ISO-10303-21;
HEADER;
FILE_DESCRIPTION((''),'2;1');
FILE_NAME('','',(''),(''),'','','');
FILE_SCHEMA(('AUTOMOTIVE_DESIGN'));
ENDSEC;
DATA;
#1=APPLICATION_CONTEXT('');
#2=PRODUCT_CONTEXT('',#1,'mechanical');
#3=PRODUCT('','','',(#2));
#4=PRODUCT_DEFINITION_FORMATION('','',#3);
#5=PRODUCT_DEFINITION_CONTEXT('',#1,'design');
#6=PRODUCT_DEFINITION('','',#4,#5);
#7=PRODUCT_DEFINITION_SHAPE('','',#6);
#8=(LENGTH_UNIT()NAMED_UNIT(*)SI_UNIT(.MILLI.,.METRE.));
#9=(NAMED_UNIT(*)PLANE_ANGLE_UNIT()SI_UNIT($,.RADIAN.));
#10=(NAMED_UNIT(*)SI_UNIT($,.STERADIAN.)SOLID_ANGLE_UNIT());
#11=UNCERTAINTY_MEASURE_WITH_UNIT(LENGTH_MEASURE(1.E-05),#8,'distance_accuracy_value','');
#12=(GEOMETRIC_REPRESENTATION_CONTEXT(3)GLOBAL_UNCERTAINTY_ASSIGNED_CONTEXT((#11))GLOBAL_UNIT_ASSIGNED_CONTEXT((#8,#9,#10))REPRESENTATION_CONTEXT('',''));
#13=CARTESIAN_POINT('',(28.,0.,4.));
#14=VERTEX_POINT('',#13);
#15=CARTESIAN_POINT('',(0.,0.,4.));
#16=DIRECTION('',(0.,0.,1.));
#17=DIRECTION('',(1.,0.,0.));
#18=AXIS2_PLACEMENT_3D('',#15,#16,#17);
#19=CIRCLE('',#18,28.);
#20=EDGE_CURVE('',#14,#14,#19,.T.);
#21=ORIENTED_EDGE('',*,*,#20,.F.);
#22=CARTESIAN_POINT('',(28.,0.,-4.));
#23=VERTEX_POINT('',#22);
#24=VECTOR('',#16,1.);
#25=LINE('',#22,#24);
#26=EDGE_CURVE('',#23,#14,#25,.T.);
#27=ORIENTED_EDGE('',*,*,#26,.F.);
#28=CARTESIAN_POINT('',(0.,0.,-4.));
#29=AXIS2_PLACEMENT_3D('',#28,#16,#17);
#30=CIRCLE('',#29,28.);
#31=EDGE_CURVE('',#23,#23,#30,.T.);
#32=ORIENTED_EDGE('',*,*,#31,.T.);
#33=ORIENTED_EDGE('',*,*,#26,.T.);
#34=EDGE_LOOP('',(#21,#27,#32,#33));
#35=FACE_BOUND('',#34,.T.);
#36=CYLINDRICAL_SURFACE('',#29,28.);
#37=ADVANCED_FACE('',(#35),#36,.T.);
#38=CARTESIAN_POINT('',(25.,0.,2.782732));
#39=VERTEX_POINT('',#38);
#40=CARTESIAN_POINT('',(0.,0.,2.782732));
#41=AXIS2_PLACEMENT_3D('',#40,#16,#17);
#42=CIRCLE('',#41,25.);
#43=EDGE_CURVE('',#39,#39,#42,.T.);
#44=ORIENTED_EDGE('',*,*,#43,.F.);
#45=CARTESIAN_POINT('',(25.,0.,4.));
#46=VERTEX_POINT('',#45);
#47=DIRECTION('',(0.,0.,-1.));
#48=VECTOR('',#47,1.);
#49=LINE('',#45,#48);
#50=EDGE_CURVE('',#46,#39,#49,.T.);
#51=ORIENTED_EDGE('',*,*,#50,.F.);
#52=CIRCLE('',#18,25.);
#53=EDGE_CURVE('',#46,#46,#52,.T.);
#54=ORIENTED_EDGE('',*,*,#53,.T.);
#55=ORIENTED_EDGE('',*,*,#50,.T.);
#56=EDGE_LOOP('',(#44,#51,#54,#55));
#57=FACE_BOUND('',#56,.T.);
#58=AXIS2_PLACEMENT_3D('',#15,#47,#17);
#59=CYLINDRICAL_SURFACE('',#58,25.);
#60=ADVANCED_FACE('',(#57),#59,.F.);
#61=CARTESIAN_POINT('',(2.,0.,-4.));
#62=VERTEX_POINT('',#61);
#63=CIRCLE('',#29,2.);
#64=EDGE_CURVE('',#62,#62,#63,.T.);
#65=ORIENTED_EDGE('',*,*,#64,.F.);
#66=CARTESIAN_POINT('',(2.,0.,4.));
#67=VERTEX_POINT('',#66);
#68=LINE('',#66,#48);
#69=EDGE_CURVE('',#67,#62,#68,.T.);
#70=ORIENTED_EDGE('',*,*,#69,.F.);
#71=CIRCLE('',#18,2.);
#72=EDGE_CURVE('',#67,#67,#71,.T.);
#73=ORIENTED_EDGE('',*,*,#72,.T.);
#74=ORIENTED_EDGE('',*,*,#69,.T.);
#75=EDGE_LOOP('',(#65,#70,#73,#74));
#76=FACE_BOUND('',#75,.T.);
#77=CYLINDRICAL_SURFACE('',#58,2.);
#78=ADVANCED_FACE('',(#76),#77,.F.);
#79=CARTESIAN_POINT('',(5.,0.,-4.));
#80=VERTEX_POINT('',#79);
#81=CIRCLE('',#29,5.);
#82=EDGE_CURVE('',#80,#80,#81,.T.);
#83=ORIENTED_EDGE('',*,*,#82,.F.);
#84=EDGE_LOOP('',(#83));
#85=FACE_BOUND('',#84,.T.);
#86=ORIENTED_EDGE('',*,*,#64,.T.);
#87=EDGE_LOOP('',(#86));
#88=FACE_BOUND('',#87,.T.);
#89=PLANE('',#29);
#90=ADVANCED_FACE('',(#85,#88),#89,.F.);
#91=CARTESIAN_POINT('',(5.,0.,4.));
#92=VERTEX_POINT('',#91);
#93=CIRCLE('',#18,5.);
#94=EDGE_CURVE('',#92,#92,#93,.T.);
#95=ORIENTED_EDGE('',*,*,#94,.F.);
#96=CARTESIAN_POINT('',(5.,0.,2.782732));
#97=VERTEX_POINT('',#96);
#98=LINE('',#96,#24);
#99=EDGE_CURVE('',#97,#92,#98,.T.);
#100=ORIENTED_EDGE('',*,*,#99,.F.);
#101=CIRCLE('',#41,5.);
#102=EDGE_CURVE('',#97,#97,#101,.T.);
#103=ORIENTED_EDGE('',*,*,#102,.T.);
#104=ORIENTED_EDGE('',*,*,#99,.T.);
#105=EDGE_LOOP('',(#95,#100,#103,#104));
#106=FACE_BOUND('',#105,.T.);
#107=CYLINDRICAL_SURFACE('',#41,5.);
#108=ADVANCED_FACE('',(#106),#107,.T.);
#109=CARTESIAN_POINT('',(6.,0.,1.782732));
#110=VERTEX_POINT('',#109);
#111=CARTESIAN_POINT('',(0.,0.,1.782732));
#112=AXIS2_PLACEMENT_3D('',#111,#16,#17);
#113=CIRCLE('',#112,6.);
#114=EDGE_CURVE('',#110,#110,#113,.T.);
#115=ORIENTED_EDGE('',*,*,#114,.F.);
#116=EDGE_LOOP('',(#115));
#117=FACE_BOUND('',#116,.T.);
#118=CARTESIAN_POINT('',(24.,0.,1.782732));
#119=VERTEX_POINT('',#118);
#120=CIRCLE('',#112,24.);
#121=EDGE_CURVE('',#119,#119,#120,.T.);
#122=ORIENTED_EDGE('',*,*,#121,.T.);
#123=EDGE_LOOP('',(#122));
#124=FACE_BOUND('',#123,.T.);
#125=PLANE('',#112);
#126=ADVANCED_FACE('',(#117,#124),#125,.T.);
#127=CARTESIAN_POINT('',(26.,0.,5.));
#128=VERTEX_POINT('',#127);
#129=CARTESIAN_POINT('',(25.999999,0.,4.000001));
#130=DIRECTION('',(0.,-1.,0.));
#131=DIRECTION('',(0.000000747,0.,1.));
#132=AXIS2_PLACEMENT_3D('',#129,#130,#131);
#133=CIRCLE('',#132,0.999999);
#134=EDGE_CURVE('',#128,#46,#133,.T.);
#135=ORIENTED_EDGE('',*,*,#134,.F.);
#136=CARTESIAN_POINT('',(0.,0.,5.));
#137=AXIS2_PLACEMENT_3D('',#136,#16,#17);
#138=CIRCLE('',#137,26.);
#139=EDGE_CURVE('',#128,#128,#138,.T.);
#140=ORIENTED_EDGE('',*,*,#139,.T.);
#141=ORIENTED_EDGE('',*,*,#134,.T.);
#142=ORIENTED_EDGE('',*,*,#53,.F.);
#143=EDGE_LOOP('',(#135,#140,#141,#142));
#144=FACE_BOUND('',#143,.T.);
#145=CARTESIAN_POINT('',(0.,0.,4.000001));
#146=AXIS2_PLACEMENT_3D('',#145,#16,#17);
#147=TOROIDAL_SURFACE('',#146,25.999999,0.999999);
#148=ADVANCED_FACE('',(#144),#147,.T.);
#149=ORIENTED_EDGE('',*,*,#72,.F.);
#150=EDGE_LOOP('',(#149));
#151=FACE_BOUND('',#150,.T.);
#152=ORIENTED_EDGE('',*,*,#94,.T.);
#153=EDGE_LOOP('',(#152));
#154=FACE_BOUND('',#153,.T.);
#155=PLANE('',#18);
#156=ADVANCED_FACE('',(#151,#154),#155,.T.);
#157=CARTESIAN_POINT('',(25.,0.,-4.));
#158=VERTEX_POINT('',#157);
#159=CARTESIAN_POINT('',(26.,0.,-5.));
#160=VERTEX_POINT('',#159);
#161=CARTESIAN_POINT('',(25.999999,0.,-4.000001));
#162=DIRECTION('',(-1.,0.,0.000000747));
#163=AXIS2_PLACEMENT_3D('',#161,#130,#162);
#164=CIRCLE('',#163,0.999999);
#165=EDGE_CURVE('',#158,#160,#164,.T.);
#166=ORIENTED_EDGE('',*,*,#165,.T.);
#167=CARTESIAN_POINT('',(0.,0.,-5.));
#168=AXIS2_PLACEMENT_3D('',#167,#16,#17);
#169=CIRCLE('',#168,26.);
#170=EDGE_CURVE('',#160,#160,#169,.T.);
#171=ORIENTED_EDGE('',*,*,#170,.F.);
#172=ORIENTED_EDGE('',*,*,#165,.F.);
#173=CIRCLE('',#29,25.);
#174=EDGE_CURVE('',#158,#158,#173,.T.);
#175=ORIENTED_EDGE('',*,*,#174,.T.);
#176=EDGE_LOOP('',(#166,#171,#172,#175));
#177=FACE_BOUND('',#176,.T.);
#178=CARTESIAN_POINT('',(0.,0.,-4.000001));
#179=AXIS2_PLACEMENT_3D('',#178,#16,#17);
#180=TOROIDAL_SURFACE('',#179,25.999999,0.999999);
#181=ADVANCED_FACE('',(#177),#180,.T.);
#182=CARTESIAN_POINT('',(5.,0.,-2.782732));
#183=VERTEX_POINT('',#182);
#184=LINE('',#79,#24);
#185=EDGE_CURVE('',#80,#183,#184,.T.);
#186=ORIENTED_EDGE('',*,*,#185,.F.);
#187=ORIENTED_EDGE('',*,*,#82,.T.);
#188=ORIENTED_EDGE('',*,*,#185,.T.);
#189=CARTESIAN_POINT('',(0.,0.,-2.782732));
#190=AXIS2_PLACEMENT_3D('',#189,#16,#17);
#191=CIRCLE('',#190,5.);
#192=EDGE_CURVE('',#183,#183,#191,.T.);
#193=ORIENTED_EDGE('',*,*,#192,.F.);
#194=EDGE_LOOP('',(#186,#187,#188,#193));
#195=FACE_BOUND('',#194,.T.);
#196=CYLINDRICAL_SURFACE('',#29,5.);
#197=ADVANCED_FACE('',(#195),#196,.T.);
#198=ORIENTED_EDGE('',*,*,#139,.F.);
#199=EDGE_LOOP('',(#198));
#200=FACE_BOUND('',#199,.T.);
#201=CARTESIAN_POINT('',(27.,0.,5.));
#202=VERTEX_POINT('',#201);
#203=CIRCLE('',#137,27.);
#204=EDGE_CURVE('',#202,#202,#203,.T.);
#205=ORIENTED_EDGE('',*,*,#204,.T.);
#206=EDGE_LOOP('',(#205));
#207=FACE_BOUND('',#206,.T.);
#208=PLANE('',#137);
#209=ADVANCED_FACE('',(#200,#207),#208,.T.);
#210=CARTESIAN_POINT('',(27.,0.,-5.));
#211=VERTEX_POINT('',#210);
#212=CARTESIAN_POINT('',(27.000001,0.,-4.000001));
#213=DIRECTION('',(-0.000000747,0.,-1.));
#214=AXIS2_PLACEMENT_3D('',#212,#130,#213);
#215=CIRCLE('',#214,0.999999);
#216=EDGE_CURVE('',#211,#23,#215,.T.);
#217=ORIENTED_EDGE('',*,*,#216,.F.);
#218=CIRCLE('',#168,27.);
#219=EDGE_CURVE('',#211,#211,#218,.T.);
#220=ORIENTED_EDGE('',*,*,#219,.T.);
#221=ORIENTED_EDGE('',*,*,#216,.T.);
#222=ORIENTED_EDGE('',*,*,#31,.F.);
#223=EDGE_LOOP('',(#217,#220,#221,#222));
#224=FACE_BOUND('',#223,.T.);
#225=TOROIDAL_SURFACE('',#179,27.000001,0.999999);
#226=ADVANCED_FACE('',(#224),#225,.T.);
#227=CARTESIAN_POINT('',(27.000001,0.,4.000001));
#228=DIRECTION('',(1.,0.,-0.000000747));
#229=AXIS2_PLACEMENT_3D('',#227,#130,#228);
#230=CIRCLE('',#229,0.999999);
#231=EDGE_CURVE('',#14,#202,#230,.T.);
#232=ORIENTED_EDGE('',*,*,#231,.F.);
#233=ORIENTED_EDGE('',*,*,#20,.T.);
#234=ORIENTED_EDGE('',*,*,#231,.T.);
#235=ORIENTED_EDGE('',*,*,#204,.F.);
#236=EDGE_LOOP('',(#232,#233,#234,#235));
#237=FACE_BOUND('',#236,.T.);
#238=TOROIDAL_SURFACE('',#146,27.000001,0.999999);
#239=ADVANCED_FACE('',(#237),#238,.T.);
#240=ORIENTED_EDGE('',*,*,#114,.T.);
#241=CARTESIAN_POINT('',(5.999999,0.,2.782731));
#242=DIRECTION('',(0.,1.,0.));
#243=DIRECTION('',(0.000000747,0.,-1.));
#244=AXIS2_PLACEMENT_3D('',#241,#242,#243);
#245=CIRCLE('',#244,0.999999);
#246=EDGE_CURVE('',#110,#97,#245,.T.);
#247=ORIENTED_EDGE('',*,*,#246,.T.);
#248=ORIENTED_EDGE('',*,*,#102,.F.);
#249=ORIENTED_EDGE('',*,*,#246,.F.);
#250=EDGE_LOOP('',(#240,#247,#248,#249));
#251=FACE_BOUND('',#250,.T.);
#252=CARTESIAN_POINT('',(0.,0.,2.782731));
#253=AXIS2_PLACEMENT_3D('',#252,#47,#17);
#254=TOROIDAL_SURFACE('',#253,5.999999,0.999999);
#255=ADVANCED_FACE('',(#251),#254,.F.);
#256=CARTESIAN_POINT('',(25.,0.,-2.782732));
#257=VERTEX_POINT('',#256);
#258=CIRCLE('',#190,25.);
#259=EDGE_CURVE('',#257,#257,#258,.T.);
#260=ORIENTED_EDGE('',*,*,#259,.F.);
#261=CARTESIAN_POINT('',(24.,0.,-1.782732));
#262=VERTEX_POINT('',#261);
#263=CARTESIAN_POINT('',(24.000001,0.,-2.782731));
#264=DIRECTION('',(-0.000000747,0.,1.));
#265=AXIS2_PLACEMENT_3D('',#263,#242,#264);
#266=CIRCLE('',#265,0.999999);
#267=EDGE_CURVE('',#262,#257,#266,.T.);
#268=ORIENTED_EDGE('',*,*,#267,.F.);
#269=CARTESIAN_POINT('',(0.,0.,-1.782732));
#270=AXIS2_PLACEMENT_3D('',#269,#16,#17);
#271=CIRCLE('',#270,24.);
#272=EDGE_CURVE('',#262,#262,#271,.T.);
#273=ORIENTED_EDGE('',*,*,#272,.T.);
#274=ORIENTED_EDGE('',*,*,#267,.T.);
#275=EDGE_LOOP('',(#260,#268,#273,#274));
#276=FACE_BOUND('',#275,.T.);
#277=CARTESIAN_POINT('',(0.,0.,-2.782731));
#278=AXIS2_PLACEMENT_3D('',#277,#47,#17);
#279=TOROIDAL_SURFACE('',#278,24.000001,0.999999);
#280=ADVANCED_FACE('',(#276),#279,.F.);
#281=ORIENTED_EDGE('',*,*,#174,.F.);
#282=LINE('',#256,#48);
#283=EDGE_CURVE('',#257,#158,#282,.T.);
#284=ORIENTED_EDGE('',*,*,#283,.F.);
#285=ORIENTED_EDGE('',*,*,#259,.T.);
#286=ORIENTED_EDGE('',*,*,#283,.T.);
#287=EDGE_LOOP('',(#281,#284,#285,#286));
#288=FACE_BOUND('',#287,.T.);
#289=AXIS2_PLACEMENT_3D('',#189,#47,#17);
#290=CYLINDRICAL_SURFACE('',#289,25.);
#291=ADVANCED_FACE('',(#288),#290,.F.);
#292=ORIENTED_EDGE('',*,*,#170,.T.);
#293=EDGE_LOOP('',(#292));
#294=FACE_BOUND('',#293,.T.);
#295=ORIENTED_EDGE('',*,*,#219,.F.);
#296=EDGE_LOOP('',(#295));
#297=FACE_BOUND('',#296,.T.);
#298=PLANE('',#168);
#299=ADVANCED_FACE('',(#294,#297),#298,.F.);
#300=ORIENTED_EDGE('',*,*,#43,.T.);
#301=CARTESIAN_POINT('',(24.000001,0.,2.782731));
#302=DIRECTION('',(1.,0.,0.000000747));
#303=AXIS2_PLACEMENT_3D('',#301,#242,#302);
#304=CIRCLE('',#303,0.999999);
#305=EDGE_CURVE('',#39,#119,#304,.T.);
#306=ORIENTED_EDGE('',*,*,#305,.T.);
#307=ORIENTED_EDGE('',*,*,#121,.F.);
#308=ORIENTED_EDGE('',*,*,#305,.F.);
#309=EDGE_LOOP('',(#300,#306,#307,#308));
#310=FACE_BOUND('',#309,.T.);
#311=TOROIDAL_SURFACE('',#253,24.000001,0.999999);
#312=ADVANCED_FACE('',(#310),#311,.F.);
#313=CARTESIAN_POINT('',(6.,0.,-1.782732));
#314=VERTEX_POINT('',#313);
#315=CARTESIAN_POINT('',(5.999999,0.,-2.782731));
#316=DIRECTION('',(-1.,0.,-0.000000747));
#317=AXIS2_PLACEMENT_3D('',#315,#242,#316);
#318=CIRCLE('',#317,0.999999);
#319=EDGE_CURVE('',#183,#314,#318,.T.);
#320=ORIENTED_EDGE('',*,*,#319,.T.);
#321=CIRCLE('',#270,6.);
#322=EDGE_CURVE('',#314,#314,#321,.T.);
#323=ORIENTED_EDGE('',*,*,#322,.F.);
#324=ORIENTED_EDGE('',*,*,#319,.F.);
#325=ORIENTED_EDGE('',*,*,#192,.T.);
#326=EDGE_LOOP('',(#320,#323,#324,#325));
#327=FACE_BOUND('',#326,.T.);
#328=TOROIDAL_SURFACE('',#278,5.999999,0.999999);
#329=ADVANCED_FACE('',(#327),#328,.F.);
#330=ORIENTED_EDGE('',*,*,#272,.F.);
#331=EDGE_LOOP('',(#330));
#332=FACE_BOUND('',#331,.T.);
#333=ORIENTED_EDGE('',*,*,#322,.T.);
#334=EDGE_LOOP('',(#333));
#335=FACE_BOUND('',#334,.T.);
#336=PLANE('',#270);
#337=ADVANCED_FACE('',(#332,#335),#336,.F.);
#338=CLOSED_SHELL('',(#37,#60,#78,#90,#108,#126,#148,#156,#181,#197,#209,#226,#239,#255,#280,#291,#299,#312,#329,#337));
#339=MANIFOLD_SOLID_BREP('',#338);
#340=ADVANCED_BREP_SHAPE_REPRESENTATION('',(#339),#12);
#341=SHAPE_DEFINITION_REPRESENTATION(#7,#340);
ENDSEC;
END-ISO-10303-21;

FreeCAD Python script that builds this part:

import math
import FreeCAD as App
import Part
import Sketcher
Q = App.Units.Quantity

doc = App.newDocument("Part")
body = doc.addObject("PartDesign::Body", "Body")

sketch1 = doc.addObject("Sketcher::SketchObject", "Sketch")
body.addObject(sketch1)
sketch1.AttachmentSupport = (doc.XZ_Plane, [""])
sketch1.MapMode = "FlatFace"
sketch1.addGeometry([
    Part.LineSegment(App.Vector(2, 4, 0), App.Vector(2, -4, 0)),
    Part.LineSegment(App.Vector(2, -4, 0), App.Vector(5, -4, 0)),
    Part.LineSegment(App.Vector(5, -4, 0), App.Vector(5, -2.8, 0)),
    Part.ArcOfCircle(Part.Circle(App.Vector(6, -2.8, 0), App.Vector(0, 0, 1), 1), math.radians(90), math.radians(180)),
    Part.LineSegment(App.Vector(6, -1.8, 0), App.Vector(24, -1.8, 0)),
    Part.ArcOfCircle(Part.Circle(App.Vector(24, -2.8, 0), App.Vector(0, 0, 1), 1), math.radians(0), math.radians(90)),
    Part.LineSegment(App.Vector(25, -2.8, 0), App.Vector(25, -4, 0)),
    Part.ArcOfCircle(Part.Circle(App.Vector(26, -4, 0), App.Vector(0, 0, 1), 1), math.radians(180), math.radians(270)),
    Part.LineSegment(App.Vector(26, -5, 0), App.Vector(27, -5, 0)),
    Part.ArcOfCircle(Part.Circle(App.Vector(27, -4, 0), App.Vector(0, 0, 1), 1), math.radians(-90), math.radians(0)),
    Part.LineSegment(App.Vector(28, -4, 0), App.Vector(28, 4, 0)),
    Part.ArcOfCircle(Part.Circle(App.Vector(27, 4, 0), App.Vector(0, 0, 1), 1), math.radians(0), math.radians(90)),
    Part.LineSegment(App.Vector(27, 5, 0), App.Vector(26, 5, 0)),
    Part.ArcOfCircle(Part.Circle(App.Vector(26, 4, 0), App.Vector(0, 0, 1), 1), math.radians(90), math.radians(180)),
    Part.LineSegment(App.Vector(25, 4, 0), App.Vector(25, 2.8, 0)),
    Part.ArcOfCircle(Part.Circle(App.Vector(24, 2.8, 0), App.Vector(0, 0, 1), 1), math.radians(-90), math.radians(0)),
    Part.LineSegment(App.Vector(24, 1.8, 0), App.Vector(6, 1.8, 0)),
    Part.ArcOfCircle(Part.Circle(App.Vector(6, 2.8, 0), App.Vector(0, 0, 1), 1), math.radians(180), math.radians(270)),
    Part.LineSegment(App.Vector(5, 2.8, 0), App.Vector(5, 4, 0)),
    Part.LineSegment(App.Vector(5, 4, 0), App.Vector(2, 4, 0)),
], False)
sketch1.addConstraint([
    Sketcher.Constraint("Coincident", 0, 2, 1, 1),
    Sketcher.Constraint("Coincident", 1, 2, 2, 1),
    Sketcher.Constraint("Tangent", 2, 2, 3, 2),
    Sketcher.Constraint("Tangent", 3, 1, 4, 1),
    Sketcher.Constraint("Tangent", 4, 2, 5, 2),
    Sketcher.Constraint("Tangent", 5, 1, 6, 1),
    Sketcher.Constraint("Tangent", 6, 2, 7, 1),
    Sketcher.Constraint("Tangent", 7, 2, 8, 1),
    Sketcher.Constraint("Tangent", 8, 2, 9, 1),
    Sketcher.Constraint("Tangent", 9, 2, 10, 1),
    Sketcher.Constraint("Tangent", 10, 2, 11, 1),
    Sketcher.Constraint("Tangent", 11, 2, 12, 1),
    Sketcher.Constraint("Tangent", 12, 2, 13, 1),
    Sketcher.Constraint("Tangent", 13, 2, 14, 1),
    Sketcher.Constraint("Tangent", 14, 2, 15, 2),
    Sketcher.Constraint("Tangent", 15, 1, 16, 1),
    Sketcher.Constraint("Tangent", 16, 2, 17, 2),
    Sketcher.Constraint("Tangent", 17, 1, 18, 1),
    Sketcher.Constraint("Coincident", 18, 2, 19, 1),
    Sketcher.Constraint("Coincident", 19, 2, 0, 1),
    Sketcher.Constraint("Vertical", 0),
    Sketcher.Constraint("Horizontal", 1),
    Sketcher.Constraint("Vertical", 2),
    Sketcher.Constraint("Horizontal", 4),
    Sketcher.Constraint("Vertical", 6),
    Sketcher.Constraint("Horizontal", 8),
    Sketcher.Constraint("Vertical", 10),
    Sketcher.Constraint("Horizontal", 12),
    Sketcher.Constraint("Vertical", 14),
    Sketcher.Constraint("Horizontal", 16),
    Sketcher.Constraint("Vertical", 18),
    Sketcher.Constraint("Horizontal", 19),
    Sketcher.Constraint("Equal", 3, 5),
    Sketcher.Constraint("Equal", 5, 7),
    Sketcher.Constraint("Equal", 7, 9),
    Sketcher.Constraint("Equal", 9, 11),
    Sketcher.Constraint("Equal", 11, 13),
    Sketcher.Constraint("Equal", 13, 15),
    Sketcher.Constraint("Equal", 15, 17),
    Sketcher.Constraint("Symmetric", 7, 3, 13, 3, -1),
    Sketcher.Constraint("Symmetric", 3, 3, 17, 3, -1),
    Sketcher.Constraint("Horizontal", 9, 3, 0, 2),
    Sketcher.Constraint("Horizontal", 13, 2, 18, 2),
    Sketcher.Constraint("Radius", 3, Q("0.999999 mm")),
    Sketcher.Constraint("DistanceX", 1, 1, 1, 2, Q("3 mm")),
    Sketcher.Constraint("DistanceX", 4, 1, 4, 2, Q("18 mm")),
    Sketcher.Constraint("DistanceX", 8, 1, 8, 2, Q("1 mm")),
    Sketcher.Constraint("DistanceY", 0, 2, 0, 1, Q("8 mm")),
    Sketcher.Constraint("DistanceX", -1, 1, 3, 3, Q("5.999999 mm")),
    Sketcher.Constraint("DistanceY", 2, 1, 2, 2, Q("1.217268 mm")),
])
revolution = doc.addObject("PartDesign::Revolution", "Revolution")
body.addObject(revolution)
revolution.Profile = sketch1
revolution.ReferenceAxis = (sketch1, ["V_Axis"])
revolution.Angle = 360

doc.recompute()
